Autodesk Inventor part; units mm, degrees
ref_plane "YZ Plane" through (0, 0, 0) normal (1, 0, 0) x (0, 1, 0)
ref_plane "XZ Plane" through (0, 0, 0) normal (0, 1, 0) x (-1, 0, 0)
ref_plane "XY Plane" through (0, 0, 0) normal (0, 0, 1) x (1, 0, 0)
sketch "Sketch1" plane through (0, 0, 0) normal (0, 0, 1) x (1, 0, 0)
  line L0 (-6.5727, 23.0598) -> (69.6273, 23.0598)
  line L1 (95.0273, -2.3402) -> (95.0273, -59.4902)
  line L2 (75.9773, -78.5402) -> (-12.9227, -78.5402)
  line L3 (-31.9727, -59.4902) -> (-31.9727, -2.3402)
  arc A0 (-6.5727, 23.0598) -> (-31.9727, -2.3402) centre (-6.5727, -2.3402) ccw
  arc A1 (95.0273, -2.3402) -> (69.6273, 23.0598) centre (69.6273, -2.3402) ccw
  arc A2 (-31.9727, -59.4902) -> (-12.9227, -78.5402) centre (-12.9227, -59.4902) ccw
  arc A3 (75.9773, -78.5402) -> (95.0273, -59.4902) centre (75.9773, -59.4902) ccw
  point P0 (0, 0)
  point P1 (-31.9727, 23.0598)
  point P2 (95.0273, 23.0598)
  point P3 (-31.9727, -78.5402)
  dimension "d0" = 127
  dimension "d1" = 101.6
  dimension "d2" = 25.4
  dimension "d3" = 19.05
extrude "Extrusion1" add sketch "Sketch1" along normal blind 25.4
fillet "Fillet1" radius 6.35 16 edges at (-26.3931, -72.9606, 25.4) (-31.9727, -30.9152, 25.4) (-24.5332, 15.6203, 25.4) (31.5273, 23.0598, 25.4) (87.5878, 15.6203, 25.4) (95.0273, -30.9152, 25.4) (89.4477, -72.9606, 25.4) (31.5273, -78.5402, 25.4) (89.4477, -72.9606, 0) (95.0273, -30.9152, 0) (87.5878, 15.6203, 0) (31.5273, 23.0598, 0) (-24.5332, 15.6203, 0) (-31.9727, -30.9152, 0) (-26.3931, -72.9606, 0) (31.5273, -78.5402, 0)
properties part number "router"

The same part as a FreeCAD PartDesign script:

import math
import FreeCAD as App
import Part
import Sketcher

V = App.Vector
Q = App.Units.Quantity


def edges_at(feature, points):
    """Names of the edges that pass closest to the given points."""
    edges = feature.Shape.Edges
    near = lambda p: min(range(len(edges)), key=lambda i: edges[i].distToShape(Part.Vertex(*p))[0])
    return sorted({f"Edge{near(p) + 1}" for p in points})

doc = App.newDocument("Part")
params = doc.addObject("Spreadsheet::Sheet", "Params")
for row, (alias, value) in enumerate([
    ("sketch1_radius", "1 in"),
    ("sketch1_radius2", "0.75 in"),
    ("pad1_length", "1 in"),
    ("fillet_radius", "0.25 in"),
], start=1):
    params.set(f"A{row}", alias)
    params.set(f"B{row}", "=" + value)
    params.setAlias(f"B{row}", alias)

body = doc.addObject("PartDesign::Body", "Body")

# Sketch on XY plane
sketch1 = body.newObject("Sketcher::SketchObject", "Sketch")
sketch1.AttachmentSupport = (doc.getObject("XY_Plane"), [""])
sketch1.MapMode = "FlatFace"
sketch1.addGeometry(Part.LineSegment(V(69.6273, 23.0598, 0), V(-6.5727, 23.0598, 0)), False)
sketch1.addGeometry(Part.ArcOfCircle(Part.Circle(V(-6.5727, -2.3402, 0), V(0, 0, 1), 25.4), math.radians(90), math.radians(180)), False)
sketch1.addGeometry(Part.LineSegment(V(-31.9727, -2.3402, 0), V(-31.9727, -59.4902, 0)), False)
sketch1.addGeometry(Part.ArcOfCircle(Part.Circle(V(-12.9227, -59.4902, 0), V(0, 0, 1), 19.05), math.radians(180), math.radians(270)), False)
sketch1.addGeometry(Part.LineSegment(V(-12.9227, -78.5402, 0), V(75.9773, -78.5402, 0)), False)
sketch1.addGeometry(Part.ArcOfCircle(Part.Circle(V(75.9773, -59.4902, 0), V(0, 0, 1), 19.05), math.radians(-90), math.radians(0)), False)
sketch1.addGeometry(Part.LineSegment(V(95.0273, -59.4902, 0), V(95.0273, -2.3402, 0)), False)
sketch1.addGeometry(Part.ArcOfCircle(Part.Circle(V(69.6273, -2.3402, 0), V(0, 0, 1), 25.4), math.radians(0), math.radians(90)), False)
sketch1.addConstraint(Sketcher.Constraint("Tangent", 0, 2, 1, 1))
sketch1.addConstraint(Sketcher.Constraint("Tangent", 1, 2, 2, 1))
sketch1.addConstraint(Sketcher.Constraint("Tangent", 2, 2, 3, 1))
sketch1.addConstraint(Sketcher.Constraint("Tangent", 3, 2, 4, 1))
sketch1.addConstraint(Sketcher.Constraint("Tangent", 4, 2, 5, 1))
sketch1.addConstraint(Sketcher.Constraint("Tangent", 5, 2, 6, 1))
sketch1.addConstraint(Sketcher.Constraint("Tangent", 6, 2, 7, 1))
sketch1.addConstraint(Sketcher.Constraint("Tangent", 7, 2, 0, 1))
sketch1.addConstraint(Sketcher.Constraint("Horizontal", 0))
sketch1.addConstraint(Sketcher.Constraint("Vertical", 2))
sketch1.addConstraint(Sketcher.Constraint("Horizontal", 4))
sketch1.addConstraint(Sketcher.Constraint("Vertical", 6))
sketch1.addConstraint(Sketcher.Constraint("Equal", 3, 5))
sketch1.addConstraint(Sketcher.Constraint("Equal", 1, 7))
sketch1.addConstraint(Sketcher.Constraint("Radius", 1, Q("1 in")))
sketch1.addConstraint(Sketcher.Constraint("Radius", 3, Q("0.75 in")))
sketch1.addConstraint(Sketcher.Constraint("DistanceX", 1, 2, 7, 3, Q("4 in")))
sketch1.addConstraint(Sketcher.Constraint("DistanceY", 3, 2, 1, 3, Q("3 in")))
sketch1.addConstraint(Sketcher.Constraint("DistanceX", 1, 3, -1, 1, Q("6.5727 mm")))
sketch1.addConstraint(Sketcher.Constraint("DistanceY", 1, 3, -1, 1, Q("2.3402 mm")))
sketch1.setExpression("Constraints[14]", "Params.sketch1_radius")
sketch1.setExpression("Constraints[15]", "Params.sketch1_radius2")
pad1 = body.newObject("PartDesign::Pad", "Pad")
pad1.Profile = sketch1
pad1.setExpression("Length", "Params.pad1_length")
doc.recompute()

fillet = body.newObject("PartDesign::Fillet", "Fillet")
fillet.Base = (pad1, edges_at(pad1, [
    (-26.393, -72.961, 25.4),
    (-31.973, -30.915, 25.4),
    (-24.533, 15.62, 25.4),
    (31.527, 23.06, 25.4),
    (87.588, 15.62, 25.4),
    (95.027, -30.915, 25.4),
    (89.448, -72.961, 25.4),
    (31.527, -78.54, 25.4),
    (89.448, -72.961, 0),
    (95.027, -30.915, 0),
    (87.588, 15.62, 0),
    (31.527, 23.06, 0),
    (-24.533, 15.62, 0),
    (-31.973, -30.915, 0),
    (-26.393, -72.961, 0),
    (31.527, -78.54, 0),
]))
fillet.setExpression("Radius", "Params.fillet_radius")

doc.recompute()
